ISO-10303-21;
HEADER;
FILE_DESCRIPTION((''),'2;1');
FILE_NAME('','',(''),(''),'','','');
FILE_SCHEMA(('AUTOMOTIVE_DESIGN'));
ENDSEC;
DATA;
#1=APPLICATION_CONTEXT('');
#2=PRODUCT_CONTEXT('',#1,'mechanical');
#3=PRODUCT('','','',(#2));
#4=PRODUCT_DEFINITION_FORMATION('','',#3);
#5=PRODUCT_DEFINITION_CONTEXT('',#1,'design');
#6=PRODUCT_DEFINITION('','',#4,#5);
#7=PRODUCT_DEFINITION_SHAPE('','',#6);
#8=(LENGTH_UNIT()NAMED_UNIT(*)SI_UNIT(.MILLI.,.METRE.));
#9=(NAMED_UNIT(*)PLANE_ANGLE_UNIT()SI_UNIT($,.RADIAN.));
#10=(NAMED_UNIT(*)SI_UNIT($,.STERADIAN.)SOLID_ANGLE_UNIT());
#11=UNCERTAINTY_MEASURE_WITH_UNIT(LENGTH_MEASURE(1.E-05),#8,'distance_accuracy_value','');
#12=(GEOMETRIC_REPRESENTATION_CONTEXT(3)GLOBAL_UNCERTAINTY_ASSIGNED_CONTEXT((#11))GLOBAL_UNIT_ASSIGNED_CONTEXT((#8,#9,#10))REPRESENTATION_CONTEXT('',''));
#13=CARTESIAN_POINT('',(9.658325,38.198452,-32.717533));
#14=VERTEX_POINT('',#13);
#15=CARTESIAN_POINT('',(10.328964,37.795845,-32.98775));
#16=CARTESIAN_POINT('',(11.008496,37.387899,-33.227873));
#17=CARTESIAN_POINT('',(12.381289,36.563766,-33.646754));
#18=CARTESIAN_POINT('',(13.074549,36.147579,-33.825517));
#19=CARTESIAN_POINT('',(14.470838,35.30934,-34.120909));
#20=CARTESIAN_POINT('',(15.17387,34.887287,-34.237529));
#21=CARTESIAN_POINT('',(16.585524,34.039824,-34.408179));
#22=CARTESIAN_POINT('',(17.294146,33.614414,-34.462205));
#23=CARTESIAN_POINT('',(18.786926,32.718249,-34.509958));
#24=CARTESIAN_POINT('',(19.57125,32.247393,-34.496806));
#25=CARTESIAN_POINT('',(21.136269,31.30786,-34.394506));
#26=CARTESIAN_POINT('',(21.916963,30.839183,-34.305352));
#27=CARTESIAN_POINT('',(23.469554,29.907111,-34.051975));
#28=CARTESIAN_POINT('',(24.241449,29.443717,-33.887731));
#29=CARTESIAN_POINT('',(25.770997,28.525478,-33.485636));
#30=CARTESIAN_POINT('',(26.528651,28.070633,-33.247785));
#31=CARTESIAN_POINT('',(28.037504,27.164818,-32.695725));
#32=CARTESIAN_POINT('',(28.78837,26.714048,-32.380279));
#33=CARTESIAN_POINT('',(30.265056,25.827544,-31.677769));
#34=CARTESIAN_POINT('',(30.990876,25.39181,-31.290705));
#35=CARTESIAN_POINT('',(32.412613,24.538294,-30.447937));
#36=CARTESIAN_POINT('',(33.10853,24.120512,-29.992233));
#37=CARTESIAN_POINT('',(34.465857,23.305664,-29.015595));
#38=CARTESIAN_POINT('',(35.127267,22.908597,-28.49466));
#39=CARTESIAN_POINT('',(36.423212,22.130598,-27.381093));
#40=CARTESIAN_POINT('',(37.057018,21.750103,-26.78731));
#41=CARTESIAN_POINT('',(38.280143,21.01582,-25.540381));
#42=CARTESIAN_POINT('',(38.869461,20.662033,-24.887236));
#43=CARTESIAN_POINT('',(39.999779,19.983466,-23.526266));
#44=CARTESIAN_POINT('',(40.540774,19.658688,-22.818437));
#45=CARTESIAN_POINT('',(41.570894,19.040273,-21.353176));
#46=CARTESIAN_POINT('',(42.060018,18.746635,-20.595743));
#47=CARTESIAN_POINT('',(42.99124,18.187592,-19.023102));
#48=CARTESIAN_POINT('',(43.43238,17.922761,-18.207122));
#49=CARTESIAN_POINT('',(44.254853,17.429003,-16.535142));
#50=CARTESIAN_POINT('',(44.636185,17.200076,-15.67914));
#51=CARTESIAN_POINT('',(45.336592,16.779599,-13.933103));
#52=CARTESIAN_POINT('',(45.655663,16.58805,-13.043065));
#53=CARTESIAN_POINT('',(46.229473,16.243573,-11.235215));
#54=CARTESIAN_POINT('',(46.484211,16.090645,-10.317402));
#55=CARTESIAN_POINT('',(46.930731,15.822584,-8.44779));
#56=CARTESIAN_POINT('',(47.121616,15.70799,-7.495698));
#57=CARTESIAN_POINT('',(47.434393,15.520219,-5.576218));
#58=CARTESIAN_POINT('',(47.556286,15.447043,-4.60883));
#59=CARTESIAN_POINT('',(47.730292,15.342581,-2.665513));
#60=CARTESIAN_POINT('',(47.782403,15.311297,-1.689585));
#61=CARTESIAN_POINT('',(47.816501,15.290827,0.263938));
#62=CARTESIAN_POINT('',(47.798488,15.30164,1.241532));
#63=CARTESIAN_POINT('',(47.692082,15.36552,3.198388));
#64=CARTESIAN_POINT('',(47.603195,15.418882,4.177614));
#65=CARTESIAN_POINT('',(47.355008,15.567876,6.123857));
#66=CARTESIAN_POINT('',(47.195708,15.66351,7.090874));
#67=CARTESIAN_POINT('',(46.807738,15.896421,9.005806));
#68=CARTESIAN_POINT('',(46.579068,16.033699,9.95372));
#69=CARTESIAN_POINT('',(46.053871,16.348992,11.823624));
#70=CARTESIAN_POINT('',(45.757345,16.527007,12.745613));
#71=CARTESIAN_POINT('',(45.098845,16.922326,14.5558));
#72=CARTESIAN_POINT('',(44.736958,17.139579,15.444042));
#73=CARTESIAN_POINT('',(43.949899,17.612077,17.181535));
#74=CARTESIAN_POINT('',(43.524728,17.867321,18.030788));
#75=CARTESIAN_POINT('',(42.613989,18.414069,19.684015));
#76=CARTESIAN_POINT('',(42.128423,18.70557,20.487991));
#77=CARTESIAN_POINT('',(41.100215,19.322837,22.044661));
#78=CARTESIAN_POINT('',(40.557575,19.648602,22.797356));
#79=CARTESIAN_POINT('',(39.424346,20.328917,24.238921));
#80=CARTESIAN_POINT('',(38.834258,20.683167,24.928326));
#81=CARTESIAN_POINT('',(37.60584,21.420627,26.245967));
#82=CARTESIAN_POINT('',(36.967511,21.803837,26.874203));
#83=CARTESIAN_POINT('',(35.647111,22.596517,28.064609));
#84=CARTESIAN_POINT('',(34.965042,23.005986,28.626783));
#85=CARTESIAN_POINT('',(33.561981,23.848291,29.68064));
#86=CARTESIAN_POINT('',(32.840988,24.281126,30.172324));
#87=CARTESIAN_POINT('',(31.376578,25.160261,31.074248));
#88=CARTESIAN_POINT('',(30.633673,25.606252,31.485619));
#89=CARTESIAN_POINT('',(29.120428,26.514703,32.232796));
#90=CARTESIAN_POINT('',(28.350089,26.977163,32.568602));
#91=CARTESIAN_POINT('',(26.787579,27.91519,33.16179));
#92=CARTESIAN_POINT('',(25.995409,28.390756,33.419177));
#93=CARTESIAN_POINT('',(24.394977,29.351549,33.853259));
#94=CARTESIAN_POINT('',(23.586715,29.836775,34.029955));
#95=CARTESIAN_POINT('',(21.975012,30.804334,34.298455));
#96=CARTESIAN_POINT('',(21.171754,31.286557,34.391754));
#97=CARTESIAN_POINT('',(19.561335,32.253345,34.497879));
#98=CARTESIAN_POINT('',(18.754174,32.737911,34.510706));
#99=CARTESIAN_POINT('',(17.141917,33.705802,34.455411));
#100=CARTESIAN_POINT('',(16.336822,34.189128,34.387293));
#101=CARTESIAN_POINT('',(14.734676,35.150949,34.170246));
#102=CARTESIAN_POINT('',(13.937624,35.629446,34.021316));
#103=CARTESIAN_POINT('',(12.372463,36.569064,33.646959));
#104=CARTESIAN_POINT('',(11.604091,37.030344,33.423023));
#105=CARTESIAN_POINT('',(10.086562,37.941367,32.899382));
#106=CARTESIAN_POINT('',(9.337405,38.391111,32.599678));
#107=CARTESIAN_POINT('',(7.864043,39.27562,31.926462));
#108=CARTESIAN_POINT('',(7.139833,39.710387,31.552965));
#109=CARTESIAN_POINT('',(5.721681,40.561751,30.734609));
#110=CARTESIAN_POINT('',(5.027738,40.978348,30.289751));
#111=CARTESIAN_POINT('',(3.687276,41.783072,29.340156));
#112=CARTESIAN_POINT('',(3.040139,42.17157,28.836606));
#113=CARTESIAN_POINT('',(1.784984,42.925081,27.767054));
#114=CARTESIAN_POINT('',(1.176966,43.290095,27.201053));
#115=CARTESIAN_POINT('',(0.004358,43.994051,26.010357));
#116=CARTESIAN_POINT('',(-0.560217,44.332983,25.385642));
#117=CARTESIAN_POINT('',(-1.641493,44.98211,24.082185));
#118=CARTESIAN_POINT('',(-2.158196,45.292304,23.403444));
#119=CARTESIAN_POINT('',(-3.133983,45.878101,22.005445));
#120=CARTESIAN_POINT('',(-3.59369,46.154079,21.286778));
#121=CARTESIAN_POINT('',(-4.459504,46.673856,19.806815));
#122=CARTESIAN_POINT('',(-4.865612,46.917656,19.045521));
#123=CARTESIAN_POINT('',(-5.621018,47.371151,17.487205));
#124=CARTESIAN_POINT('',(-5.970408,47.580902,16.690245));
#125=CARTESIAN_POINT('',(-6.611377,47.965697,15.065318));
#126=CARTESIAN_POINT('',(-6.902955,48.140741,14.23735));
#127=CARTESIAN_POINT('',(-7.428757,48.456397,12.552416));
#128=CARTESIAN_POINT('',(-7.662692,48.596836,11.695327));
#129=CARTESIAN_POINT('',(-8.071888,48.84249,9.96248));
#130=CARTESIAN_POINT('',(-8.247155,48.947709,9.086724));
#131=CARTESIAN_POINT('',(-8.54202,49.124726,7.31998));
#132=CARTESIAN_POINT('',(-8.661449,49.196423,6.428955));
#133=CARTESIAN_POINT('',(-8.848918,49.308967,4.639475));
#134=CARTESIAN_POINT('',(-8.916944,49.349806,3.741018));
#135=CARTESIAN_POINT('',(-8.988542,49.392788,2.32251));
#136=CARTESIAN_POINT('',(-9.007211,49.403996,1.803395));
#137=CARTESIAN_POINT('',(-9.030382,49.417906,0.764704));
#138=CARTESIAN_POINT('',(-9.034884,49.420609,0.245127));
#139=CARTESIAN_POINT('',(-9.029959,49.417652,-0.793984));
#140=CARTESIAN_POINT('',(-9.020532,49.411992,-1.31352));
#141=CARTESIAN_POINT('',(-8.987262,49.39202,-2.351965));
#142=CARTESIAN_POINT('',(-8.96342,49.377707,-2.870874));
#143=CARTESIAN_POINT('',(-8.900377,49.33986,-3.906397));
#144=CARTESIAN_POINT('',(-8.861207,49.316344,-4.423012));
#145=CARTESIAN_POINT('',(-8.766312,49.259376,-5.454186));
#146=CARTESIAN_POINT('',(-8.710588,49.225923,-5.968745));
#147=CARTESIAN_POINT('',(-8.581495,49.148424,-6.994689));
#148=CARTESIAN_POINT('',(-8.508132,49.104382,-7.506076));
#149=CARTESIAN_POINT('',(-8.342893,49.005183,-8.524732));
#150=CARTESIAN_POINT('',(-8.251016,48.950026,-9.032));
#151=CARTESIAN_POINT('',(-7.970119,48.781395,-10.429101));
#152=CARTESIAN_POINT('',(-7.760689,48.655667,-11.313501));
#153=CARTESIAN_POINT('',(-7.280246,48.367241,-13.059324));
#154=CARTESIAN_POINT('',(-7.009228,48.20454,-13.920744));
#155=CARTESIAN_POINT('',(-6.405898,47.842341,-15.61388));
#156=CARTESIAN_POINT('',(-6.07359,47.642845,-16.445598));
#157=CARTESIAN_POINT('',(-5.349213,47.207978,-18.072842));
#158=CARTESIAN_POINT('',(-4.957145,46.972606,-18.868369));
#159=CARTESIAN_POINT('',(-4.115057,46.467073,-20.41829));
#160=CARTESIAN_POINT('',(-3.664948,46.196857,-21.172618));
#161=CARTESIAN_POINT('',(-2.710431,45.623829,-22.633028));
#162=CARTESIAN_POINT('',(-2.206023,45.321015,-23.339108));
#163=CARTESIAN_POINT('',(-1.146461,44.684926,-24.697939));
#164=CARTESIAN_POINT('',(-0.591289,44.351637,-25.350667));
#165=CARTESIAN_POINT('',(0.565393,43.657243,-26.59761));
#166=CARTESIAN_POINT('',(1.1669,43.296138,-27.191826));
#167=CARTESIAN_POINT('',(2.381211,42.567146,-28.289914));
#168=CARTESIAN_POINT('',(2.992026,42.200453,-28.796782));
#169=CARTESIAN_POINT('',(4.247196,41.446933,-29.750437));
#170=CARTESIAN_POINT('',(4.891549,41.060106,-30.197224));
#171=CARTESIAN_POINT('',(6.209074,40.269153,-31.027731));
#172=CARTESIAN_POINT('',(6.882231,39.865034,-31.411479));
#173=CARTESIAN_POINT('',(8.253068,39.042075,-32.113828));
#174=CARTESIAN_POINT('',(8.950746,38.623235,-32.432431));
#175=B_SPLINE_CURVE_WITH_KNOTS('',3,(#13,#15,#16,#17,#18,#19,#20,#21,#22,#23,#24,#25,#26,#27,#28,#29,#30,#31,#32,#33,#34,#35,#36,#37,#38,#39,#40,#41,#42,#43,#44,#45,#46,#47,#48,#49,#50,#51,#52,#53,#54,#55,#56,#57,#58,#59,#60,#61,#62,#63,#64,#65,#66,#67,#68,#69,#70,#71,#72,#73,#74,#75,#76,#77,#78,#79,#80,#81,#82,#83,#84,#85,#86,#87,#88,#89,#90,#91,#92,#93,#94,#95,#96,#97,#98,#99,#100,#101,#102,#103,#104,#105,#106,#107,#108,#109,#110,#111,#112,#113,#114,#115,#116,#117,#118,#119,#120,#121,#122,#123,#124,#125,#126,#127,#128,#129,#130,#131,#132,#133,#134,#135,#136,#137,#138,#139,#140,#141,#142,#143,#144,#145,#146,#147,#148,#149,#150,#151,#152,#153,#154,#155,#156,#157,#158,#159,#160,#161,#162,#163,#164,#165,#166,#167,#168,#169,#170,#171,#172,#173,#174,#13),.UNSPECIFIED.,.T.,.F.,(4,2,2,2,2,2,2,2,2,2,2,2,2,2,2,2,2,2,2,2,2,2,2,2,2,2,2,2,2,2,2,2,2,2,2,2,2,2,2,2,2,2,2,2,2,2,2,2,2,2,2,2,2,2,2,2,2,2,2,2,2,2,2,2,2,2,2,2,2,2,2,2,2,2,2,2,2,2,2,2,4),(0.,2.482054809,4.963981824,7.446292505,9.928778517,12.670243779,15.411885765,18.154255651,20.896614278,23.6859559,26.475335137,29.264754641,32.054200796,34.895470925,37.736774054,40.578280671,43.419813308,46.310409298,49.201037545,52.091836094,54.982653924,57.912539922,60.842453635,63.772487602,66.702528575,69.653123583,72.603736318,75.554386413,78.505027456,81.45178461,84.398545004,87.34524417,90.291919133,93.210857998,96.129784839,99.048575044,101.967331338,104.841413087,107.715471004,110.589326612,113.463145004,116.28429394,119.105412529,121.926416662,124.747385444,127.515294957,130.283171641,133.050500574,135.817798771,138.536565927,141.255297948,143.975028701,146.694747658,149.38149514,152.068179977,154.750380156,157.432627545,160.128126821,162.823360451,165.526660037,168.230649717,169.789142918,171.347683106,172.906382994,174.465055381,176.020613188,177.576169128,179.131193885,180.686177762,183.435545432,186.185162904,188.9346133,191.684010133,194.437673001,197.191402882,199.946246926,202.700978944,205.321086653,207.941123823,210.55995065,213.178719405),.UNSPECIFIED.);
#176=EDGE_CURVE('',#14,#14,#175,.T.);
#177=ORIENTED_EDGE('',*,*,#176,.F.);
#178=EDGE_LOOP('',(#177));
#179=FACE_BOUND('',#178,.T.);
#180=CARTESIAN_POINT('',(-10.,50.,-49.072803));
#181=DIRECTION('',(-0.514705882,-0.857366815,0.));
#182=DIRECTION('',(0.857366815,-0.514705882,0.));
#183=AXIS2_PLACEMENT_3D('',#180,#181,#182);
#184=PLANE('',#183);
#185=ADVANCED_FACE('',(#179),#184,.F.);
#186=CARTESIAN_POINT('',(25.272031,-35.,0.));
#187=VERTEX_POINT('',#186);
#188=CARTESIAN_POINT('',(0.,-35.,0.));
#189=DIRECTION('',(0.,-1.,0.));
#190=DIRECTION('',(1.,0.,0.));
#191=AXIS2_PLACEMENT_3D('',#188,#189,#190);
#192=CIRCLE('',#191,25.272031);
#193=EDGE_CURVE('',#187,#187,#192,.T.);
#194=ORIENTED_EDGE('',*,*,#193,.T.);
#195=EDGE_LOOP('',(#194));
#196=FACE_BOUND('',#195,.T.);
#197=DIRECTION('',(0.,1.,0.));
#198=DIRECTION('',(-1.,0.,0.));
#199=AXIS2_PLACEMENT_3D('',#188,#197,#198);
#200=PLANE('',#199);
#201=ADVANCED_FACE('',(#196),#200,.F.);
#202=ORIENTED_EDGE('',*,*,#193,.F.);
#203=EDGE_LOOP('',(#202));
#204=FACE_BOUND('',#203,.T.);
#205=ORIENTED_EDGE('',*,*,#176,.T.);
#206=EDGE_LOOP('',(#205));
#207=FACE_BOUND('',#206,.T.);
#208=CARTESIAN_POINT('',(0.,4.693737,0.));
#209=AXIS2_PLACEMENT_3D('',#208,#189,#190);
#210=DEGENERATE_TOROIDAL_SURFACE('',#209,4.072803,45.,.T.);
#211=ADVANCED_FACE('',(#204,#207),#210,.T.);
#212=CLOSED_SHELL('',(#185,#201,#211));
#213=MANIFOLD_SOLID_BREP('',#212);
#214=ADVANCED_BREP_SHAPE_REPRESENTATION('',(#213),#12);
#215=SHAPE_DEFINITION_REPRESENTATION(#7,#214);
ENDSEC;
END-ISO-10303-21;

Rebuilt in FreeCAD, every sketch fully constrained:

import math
import FreeCAD as App
import Part
import Sketcher
Q = App.Units.Quantity


def add_polygon(sketch, points):
    """Adds a closed chain of lines whose ends are joined by coincident constraints."""
    first, n = sketch.GeometryCount, len(points)
    for a, b in zip(points, points[1:] + points[:1]):
        sketch.addGeometry(Part.LineSegment(App.Vector(*a, 0), App.Vector(*b, 0)), False)
    for i in range(n):
        sketch.addConstraint(Sketcher.Constraint("Coincident", first + i, 2, first + (i + 1) % n, 1))

doc = App.newDocument("Part")
body = doc.addObject("PartDesign::Body", "Body")

# Sketch on XY plane
sketch1 = doc.addObject("Sketcher::SketchObject", "Sketch")
body.addObject(sketch1)
sketch1.AttachmentSupport = (doc.XY_Plane, [""])
sketch1.MapMode = "FlatFace"
sketch1.addGeometry([
    Part.LineSegment(App.Vector(0, -35, 0), App.Vector(0, 50, 0)),
    Part.ArcOfCircle(Part.Circle(App.Vector(-4, 5, 0), App.Vector(0, 0, 1), 45), math.radians(85), math.radians(242)),
    Part.LineSegment(App.Vector(-25, -35, 0), App.Vector(0, -35, 0)),
], False)
sketch1.addConstraint([
    Sketcher.Constraint("Coincident", 0, 2, 1, 1),
    Sketcher.Constraint("Coincident", 1, 2, 2, 1),
    Sketcher.Constraint("Coincident", 2, 2, 0, 1),
    Sketcher.Constraint("Vertical", 0),
    Sketcher.Constraint("Horizontal", 2),
    Sketcher.Constraint("PointOnObject", 0, 2, -2),
    Sketcher.Constraint("Radius", 1, Q("45 mm")),
    Sketcher.Constraint("DistanceY", 1, 2, -1, 1, Q("35 mm")),
    Sketcher.Constraint("DistanceX", 2, 1, 2, 2, Q("25.272031 mm")),
    Sketcher.Constraint("DistanceY", 0, 1, 0, 2, Q("84.50905 mm")),
])
revolution = doc.addObject("PartDesign::Revolution", "Revolution")
body.addObject(revolution)
revolution.Profile = sketch1
revolution.ReferenceAxis = (sketch1, ["V_Axis"])
revolution.Angle = 360

# Sketch on XY plane
sketch2 = doc.addObject("Sketcher::SketchObject", "Sketch001")
body.addObject(sketch2)
sketch2.AttachmentSupport = (doc.XY_Plane, [""])
sketch2.MapMode = "FlatFace"
add_polygon(sketch2, [(-10, 50), (48, 15), (48, 50)])  # lines 0-2
sketch2.addConstraint([
    Sketcher.Constraint("Vertical", 1),
    Sketcher.Constraint("Horizontal", 2),
    Sketcher.Constraint("DistanceY", 1, 1, 1, 2, Q("35 mm")),
    Sketcher.Constraint("Distance", 0, Q("68 mm")),
    Sketcher.Constraint("DistanceY", -1, 1, 0, 2, Q("15 mm")),
    Sketcher.Constraint("DistanceX", 2, 2, -1, 1, Q("10 mm")),
])
pocket1 = doc.addObject("PartDesign::Pocket", "Pocket")
body.addObject(pocket1)
pocket1.Profile = sketch2
pocket1.Type = "ThroughAll"
pocket1.Midplane = True

doc.recompute()
